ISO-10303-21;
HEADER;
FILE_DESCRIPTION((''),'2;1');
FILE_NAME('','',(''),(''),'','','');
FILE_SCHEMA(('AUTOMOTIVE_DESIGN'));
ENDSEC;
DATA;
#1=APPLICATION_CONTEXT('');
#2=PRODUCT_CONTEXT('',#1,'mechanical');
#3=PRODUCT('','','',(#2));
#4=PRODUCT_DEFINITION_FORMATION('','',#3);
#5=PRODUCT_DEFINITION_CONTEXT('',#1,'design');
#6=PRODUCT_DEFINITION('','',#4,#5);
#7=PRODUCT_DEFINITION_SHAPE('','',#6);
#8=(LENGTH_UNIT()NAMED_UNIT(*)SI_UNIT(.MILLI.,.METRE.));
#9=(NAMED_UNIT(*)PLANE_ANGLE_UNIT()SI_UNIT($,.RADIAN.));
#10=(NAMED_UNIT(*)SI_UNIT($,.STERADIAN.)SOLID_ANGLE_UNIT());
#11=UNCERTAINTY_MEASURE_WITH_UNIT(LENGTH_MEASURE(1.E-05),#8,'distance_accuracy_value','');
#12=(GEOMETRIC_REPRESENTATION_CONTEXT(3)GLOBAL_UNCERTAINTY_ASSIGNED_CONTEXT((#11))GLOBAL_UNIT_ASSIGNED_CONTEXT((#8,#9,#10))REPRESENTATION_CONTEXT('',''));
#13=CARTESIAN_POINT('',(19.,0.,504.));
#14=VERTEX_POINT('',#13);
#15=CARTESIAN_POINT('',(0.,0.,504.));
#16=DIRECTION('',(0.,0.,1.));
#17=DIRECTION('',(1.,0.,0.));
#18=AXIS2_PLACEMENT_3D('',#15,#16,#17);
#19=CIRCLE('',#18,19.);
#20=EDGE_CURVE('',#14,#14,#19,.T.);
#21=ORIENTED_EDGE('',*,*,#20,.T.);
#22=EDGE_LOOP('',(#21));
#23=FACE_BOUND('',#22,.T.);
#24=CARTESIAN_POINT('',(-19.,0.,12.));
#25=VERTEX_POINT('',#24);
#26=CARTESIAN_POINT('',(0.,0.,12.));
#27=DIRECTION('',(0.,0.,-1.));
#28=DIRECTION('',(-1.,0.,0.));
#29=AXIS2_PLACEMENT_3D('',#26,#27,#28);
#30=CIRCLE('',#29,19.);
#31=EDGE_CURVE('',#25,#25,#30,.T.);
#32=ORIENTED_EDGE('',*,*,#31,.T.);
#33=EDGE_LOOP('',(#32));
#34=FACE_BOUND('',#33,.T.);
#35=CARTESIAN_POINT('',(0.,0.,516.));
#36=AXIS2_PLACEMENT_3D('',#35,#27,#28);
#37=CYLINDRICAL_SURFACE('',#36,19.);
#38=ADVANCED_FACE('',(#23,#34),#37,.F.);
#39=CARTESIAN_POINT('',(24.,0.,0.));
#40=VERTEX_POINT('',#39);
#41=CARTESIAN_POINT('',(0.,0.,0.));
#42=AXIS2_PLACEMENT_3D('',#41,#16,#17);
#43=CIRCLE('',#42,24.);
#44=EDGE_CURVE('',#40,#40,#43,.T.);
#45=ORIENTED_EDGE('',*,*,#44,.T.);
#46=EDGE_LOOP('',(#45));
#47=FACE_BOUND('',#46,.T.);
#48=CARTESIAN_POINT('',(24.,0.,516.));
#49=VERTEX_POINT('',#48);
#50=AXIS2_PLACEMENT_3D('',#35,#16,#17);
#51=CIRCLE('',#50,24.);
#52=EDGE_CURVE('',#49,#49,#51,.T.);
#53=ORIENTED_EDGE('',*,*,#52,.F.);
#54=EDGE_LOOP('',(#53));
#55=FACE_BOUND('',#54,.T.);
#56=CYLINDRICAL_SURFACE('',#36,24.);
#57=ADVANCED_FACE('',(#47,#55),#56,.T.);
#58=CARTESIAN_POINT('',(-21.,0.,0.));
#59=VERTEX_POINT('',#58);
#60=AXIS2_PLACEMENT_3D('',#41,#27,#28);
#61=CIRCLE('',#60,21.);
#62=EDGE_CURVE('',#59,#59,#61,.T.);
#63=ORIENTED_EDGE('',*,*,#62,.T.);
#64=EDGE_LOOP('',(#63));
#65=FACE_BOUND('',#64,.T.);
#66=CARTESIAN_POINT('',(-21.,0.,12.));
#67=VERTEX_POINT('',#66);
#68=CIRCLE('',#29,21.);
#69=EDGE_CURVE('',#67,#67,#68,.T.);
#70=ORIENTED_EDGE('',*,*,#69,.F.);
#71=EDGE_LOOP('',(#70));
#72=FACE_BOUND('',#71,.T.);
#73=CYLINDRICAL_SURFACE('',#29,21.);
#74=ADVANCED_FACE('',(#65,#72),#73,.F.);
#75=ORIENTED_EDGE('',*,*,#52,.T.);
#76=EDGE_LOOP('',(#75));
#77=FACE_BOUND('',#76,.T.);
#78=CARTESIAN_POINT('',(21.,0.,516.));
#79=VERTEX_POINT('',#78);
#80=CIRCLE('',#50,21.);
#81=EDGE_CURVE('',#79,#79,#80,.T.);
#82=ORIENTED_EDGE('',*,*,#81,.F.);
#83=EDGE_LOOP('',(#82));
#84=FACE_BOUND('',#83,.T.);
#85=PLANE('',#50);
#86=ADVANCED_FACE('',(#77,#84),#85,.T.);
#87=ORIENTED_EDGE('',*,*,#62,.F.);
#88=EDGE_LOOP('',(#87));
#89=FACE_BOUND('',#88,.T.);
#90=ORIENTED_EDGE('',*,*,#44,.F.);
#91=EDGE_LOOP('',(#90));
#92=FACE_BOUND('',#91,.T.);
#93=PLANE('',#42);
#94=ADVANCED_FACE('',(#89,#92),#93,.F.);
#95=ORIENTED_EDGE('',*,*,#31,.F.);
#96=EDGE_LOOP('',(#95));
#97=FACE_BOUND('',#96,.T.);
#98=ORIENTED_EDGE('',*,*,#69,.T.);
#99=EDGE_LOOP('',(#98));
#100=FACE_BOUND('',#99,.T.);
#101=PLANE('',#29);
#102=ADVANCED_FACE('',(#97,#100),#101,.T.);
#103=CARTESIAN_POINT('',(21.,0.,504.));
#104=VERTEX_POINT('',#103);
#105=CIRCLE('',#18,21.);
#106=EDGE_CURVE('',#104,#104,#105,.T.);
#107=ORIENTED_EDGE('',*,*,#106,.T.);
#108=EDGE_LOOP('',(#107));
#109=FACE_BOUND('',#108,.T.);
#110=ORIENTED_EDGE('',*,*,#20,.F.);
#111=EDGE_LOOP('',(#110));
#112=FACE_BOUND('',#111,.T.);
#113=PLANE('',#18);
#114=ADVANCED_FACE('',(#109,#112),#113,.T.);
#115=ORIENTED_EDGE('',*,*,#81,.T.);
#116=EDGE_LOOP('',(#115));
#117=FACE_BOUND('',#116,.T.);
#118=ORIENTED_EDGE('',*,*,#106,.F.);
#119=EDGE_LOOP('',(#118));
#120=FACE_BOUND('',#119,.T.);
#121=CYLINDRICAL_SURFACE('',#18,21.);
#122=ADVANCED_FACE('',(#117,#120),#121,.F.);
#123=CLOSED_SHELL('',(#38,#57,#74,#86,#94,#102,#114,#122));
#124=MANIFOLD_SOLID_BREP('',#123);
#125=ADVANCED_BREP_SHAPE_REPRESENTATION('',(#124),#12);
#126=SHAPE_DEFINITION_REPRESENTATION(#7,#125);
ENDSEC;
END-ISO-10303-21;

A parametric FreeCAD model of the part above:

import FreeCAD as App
import Part
import Sketcher

V = App.Vector

doc = App.newDocument("Part")
params = doc.addObject("Spreadsheet::Sheet", "Params")
for row, (alias, value) in enumerate([
    ("sketch1_diameter", "48 mm"),
    ("sketch1_diameter2", "38 mm"),
    ("pad1_length", "516 mm"),
    ("sketch2_diameter", "42 mm"),
    ("sketch2_diameter2", "38 mm"),
    ("pocket1_length", "12 mm"),
    ("sketch3_diameter", "42 mm"),
    ("sketch3_diameter2", "38 mm"),
    ("pocket2_length", "12 mm"),
], start=1):
    params.set(f"A{row}", alias)
    params.set(f"B{row}", "=" + value)
    params.setAlias(f"B{row}", alias)

body = doc.addObject("PartDesign::Body", "Body")

sketch1 = body.newObject("Sketcher::SketchObject", "Sketch")
sketch1.AttachmentSupport = (doc.getObject("XY_Plane"), [""])
sketch1.MapMode = "FlatFace"
sketch1.addGeometry([
    Part.Circle(V(0, 0, 0), V(0, 0, 1), 24),
    Part.Circle(V(0, 0, 0), V(0, 0, 1), 19),
], False)
sketch1.addConstraint([
    Sketcher.Constraint("Coincident", 0, 3, -1, 1),
    Sketcher.Constraint("Coincident", 1, 3, -1, 1),
    Sketcher.Constraint("Diameter", 0, 48.0),
    Sketcher.Constraint("Diameter", 1, 38.0),
])
sketch1.setExpression("Constraints[2]", "Params.sketch1_diameter")
sketch1.setExpression("Constraints[3]", "Params.sketch1_diameter2")
pad1 = body.newObject("PartDesign::Pad", "Pad")
pad1.Profile = sketch1
pad1.setExpression("Length", "Params.pad1_length")

sketch2 = body.newObject("Sketcher::SketchObject", "Sketch001")
sketch2.AttachmentSupport = (doc.getObject("XY_Plane"), [""])
sketch2.MapMode = "FlatFace"
sketch2.AttachmentOffset = App.Placement(V(0, 0, 504), App.Rotation())
sketch2.addGeometry([
    Part.Circle(V(0, 0, 0), V(0, 0, 1), 21),
    Part.Circle(V(0, 0, 0), V(0, 0, 1), 19),
], False)
sketch2.addConstraint([
    Sketcher.Constraint("Coincident", 0, 3, -1, 1),
    Sketcher.Constraint("Coincident", 1, 3, -1, 1),
    Sketcher.Constraint("Diameter", 0, 42.0),
    Sketcher.Constraint("Diameter", 1, 38.0),
])
sketch2.setExpression("Constraints[2]", "Params.sketch2_diameter")
sketch2.setExpression("Constraints[3]", "Params.sketch2_diameter2")
pocket1 = body.newObject("PartDesign::Pocket", "Pocket")
pocket1.Profile = sketch2
pocket1.setExpression("Length", "Params.pocket1_length")
pocket1.Reversed = True

sketch3 = body.newObject("Sketcher::SketchObject", "Sketch002")
sketch3.AttachmentSupport = (doc.getObject("XY_Plane"), [""])
sketch3.MapMode = "FlatFace"
sketch3.addGeometry([
    Part.Circle(V(0, 0, 0), V(0, 0, 1), 21),
    Part.Circle(V(0, 0, 0), V(0, 0, 1), 19),
], False)
sketch3.addConstraint([
    Sketcher.Constraint("Coincident", 0, 3, -1, 1),
    Sketcher.Constraint("Coincident", 1, 3, -1, 1),
    Sketcher.Constraint("Diameter", 0, 42.0),
    Sketcher.Constraint("Diameter", 1, 38.0),
])
sketch3.setExpression("Constraints[2]", "Params.sketch3_diameter")
sketch3.setExpression("Constraints[3]", "Params.sketch3_diameter2")
pocket2 = body.newObject("PartDesign::Pocket", "Pocket001")
pocket2.Profile = sketch3
pocket2.setExpression("Length", "Params.pocket2_length")
pocket2.Reversed = True

doc.recompute()
